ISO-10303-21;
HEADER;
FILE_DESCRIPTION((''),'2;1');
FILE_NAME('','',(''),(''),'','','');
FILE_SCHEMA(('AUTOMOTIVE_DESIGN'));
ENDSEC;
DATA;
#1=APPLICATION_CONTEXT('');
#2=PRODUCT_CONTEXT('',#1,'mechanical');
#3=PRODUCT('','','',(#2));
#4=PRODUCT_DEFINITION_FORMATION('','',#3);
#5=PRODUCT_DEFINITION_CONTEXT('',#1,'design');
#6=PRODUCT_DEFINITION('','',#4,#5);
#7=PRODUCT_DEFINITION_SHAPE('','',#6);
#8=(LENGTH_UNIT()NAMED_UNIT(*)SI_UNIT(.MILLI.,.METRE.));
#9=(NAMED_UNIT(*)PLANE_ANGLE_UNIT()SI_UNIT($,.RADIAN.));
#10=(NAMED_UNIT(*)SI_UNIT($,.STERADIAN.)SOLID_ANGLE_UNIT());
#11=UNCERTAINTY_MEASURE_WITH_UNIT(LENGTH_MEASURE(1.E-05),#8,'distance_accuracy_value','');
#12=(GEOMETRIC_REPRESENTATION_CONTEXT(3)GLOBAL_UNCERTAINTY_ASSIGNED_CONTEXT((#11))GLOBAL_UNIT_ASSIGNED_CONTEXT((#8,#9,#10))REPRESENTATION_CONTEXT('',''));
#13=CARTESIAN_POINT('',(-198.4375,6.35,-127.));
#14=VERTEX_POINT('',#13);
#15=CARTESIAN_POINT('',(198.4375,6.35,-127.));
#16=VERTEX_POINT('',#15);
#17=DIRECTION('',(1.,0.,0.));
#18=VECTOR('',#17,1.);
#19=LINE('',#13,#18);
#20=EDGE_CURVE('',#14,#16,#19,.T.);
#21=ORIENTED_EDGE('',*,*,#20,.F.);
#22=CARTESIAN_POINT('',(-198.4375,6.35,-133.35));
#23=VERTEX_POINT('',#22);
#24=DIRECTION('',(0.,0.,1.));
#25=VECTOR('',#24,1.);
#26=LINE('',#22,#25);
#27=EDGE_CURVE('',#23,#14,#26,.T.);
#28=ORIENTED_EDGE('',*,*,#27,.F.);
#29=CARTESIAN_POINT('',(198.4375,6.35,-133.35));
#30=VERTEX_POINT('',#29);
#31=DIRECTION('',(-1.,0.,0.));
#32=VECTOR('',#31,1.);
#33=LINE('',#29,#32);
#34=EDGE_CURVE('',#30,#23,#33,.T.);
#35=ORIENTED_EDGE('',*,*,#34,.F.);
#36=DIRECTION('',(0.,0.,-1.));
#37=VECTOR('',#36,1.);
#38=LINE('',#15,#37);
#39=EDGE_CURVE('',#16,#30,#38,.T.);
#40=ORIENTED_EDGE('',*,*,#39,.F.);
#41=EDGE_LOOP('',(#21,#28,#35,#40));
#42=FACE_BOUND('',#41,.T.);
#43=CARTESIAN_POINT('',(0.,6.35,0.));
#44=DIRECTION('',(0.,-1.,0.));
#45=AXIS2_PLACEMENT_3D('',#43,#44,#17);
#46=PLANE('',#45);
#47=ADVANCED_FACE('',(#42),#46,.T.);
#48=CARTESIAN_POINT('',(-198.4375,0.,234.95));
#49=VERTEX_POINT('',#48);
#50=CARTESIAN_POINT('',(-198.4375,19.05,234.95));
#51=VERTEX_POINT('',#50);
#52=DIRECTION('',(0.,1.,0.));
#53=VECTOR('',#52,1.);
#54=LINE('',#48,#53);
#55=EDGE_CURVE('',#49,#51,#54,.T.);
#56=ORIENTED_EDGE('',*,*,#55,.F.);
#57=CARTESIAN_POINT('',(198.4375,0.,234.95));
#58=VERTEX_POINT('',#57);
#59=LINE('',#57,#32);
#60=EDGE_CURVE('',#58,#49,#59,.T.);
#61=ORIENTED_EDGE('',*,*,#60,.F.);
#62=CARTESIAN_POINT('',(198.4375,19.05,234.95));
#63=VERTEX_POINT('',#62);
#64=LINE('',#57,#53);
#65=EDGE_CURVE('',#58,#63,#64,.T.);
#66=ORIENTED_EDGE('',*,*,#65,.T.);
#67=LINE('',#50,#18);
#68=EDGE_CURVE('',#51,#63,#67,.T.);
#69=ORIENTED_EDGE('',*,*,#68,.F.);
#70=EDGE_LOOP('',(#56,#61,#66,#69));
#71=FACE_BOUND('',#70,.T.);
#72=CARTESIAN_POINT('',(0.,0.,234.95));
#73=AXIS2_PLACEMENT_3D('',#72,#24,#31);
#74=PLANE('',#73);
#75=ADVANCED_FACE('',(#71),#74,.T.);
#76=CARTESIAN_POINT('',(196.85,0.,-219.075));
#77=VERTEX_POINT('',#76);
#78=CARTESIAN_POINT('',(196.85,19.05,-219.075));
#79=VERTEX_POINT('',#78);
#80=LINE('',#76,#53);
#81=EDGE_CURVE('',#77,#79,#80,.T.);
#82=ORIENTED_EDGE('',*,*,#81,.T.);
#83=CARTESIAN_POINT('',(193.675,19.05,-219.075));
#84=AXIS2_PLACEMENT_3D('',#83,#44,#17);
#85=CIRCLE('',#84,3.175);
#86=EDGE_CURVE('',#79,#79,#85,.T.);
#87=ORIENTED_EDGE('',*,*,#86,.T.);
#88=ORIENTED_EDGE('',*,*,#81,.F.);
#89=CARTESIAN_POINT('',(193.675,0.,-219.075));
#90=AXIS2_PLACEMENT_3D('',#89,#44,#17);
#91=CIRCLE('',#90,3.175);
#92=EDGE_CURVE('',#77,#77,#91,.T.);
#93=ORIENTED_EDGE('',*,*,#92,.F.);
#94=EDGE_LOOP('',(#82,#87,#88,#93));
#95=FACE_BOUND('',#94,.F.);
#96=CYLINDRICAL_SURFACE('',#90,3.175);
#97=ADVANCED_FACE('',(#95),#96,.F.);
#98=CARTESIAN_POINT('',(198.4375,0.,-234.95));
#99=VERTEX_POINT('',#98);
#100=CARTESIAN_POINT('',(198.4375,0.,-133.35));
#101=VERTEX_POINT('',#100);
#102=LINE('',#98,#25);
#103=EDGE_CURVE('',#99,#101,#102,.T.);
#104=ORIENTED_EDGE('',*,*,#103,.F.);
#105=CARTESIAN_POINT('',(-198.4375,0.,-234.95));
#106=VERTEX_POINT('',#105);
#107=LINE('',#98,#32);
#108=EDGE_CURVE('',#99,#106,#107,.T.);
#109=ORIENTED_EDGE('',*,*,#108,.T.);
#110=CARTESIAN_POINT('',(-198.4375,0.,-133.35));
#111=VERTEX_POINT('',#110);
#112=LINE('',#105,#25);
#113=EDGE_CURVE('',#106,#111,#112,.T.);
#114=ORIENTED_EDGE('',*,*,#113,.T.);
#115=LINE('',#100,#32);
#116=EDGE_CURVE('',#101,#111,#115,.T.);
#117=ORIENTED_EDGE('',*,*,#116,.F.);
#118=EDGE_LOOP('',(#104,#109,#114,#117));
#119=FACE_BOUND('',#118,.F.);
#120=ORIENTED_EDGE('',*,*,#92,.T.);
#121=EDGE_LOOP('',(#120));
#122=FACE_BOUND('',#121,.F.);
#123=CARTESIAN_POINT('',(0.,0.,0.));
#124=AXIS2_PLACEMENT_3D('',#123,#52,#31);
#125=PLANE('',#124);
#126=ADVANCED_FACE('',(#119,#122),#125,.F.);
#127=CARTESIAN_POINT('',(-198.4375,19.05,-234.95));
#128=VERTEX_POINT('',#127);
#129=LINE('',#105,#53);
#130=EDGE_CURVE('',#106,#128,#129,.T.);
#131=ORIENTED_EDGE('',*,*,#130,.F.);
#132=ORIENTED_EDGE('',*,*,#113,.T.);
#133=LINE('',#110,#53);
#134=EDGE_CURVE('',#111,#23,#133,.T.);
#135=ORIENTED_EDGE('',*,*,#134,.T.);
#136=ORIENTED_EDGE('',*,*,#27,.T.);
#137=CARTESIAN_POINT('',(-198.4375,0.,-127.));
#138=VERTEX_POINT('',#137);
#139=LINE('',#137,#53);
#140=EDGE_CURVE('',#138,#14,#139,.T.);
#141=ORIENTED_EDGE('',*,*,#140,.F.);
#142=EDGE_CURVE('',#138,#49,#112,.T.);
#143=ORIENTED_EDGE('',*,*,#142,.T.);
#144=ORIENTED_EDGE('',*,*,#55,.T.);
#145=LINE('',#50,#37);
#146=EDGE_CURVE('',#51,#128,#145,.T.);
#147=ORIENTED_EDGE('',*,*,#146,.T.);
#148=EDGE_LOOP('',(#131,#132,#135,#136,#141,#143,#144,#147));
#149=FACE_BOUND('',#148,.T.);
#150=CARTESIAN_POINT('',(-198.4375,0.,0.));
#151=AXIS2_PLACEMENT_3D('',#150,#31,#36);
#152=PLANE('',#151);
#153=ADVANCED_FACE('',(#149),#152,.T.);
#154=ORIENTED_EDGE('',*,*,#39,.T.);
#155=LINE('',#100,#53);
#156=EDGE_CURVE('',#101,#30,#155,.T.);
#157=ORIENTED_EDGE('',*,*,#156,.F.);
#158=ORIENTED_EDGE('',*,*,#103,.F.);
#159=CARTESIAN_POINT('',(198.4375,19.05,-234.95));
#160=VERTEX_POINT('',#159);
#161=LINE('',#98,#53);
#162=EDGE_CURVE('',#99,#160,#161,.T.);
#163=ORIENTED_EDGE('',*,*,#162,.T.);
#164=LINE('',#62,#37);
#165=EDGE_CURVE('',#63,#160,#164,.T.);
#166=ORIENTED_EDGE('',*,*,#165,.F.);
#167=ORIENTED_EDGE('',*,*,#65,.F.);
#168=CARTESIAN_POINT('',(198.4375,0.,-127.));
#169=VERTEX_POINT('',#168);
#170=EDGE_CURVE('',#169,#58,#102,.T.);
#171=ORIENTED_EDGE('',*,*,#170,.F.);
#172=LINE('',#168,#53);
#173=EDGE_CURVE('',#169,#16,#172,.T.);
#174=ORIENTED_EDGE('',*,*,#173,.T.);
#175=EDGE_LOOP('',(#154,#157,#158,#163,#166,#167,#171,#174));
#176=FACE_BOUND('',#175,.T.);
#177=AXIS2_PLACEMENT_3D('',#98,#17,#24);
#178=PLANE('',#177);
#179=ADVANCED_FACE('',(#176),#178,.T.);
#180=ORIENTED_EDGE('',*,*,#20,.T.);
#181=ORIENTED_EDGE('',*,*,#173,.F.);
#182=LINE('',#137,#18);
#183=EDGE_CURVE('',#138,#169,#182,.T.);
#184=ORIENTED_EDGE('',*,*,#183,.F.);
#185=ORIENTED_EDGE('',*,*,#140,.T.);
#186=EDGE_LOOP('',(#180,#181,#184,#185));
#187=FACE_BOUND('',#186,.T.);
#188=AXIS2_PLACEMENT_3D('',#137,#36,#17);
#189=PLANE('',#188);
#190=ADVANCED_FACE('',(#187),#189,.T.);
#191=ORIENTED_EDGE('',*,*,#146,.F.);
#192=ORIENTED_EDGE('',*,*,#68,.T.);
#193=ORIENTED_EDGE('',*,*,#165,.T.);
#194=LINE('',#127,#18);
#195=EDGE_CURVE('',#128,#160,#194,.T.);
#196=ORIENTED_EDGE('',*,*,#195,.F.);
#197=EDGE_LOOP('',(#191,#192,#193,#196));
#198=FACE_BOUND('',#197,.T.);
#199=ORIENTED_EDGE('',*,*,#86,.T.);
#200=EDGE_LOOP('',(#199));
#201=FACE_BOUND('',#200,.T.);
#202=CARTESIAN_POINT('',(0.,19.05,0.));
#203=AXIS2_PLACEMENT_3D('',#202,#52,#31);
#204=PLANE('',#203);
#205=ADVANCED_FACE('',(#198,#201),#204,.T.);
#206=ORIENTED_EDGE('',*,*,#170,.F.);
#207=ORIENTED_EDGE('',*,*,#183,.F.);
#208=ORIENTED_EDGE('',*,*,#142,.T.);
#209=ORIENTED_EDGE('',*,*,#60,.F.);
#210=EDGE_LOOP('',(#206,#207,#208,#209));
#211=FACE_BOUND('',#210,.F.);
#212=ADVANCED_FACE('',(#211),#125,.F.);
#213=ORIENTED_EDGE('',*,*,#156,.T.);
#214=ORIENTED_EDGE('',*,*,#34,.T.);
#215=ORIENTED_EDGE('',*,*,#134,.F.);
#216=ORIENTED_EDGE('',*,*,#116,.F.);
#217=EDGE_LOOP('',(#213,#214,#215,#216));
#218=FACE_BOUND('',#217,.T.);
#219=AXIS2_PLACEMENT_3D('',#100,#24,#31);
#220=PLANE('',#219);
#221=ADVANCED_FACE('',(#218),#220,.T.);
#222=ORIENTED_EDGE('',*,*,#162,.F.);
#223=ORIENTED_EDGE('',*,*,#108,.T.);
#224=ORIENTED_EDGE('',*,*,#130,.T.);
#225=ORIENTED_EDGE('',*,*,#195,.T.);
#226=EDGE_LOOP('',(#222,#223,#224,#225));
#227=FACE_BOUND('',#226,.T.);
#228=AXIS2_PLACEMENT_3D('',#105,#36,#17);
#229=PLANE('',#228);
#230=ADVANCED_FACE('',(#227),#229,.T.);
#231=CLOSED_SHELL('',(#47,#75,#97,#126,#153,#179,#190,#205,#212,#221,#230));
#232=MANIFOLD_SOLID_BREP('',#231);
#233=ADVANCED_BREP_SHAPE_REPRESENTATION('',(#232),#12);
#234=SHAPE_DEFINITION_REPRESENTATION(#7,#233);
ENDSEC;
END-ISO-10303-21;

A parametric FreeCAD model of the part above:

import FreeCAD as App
import Part
import Sketcher
from FreeCAD import Vector
Q = App.Units.Quantity

doc = App.newDocument("Part")
body = doc.addObject("PartDesign::Body", "Body")

sketch1 = doc.addObject("Sketcher::SketchObject", "Sketch")
body.addObject(sketch1)
sketch1.AttachmentSupport = (doc.XZ_Plane, [""])
sketch1.MapMode = "FlatFace"
sketch1.addGeometry(Part.LineSegment(Vector(-198.4375, -234.95, 0), Vector(-198.4375, 234.95, 0)), False)
sketch1.addGeometry(Part.LineSegment(Vector(-198.4375, 234.95, 0), Vector(198.4375, 234.95, 0)), False)
sketch1.addGeometry(Part.LineSegment(Vector(198.4375, 234.95, 0), Vector(198.4375, -234.95, 0)), False)
sketch1.addGeometry(Part.LineSegment(Vector(198.4375, -234.95, 0), Vector(-198.4375, -234.95, 0)), False)
sketch1.addConstraint(Sketcher.Constraint("Coincident", 0, 2, 1, 1))
sketch1.addConstraint(Sketcher.Constraint("Coincident", 1, 2, 2, 1))
sketch1.addConstraint(Sketcher.Constraint("Coincident", 2, 2, 3, 1))
sketch1.addConstraint(Sketcher.Constraint("Coincident", 3, 2, 0, 1))
sketch1.addConstraint(Sketcher.Constraint("Vertical", 0))
sketch1.addConstraint(Sketcher.Constraint("Horizontal", 1))
sketch1.addConstraint(Sketcher.Constraint("Vertical", 2))
sketch1.addConstraint(Sketcher.Constraint("Horizontal", 3))
sketch1.addConstraint(Sketcher.Constraint("Symmetric", 0, 2, 2, 2, -1, 1))
sketch1.addConstraint(Sketcher.Constraint("DistanceY", 0, 1, 0, 2, Q("18.5 in")))
sketch1.addConstraint(Sketcher.Constraint("DistanceX", 1, 1, 1, 2, Q("15.625 in")))
pad1 = doc.addObject("PartDesign::Pad", "Pad")
body.addObject(pad1)
pad1.Profile = sketch1
pad1.Length = Q("0.75 in")
pad1.Reversed = True

sketch2 = doc.addObject("Sketcher::SketchObject", "Sketch001")
body.addObject(sketch2)
sketch2.AttachmentSupport = (doc.XZ_Plane, [""])
sketch2.MapMode = "FlatFace"
sketch2.addGeometry(Part.Circle(Vector(193.675, -219.075, 0), Vector(0, 0, 1), 3.175), False)
sketch2.addConstraint(Sketcher.Constraint("Diameter", 0, Q("0.25 in")))
sketch2.addConstraint(Sketcher.Constraint("DistanceX", -1, 1, 0, 3, Q("7.625 in")))
sketch2.addConstraint(Sketcher.Constraint("DistanceY", 0, 3, -1, 1, Q("8.625 in")))
pocket1 = doc.addObject("PartDesign::Pocket", "Pocket")
body.addObject(pocket1)
pocket1.Profile = sketch2
pocket1.Length = Q("0.75 in")

sketch3 = doc.addObject("Sketcher::SketchObject", "Sketch002")
body.addObject(sketch3)
sketch3.AttachmentSupport = (doc.XZ_Plane, [""])
sketch3.MapMode = "FlatFace"
sketch3.addGeometry(Part.LineSegment(Vector(198.4375, -127, 0), Vector(-198.4375, -127, 0)), False)
sketch3.addGeometry(Part.LineSegment(Vector(-198.4375, -127, 0), Vector(-198.4375, -133.35, 0)), False)
sketch3.addGeometry(Part.LineSegment(Vector(-198.4375, -133.35, 0), Vector(198.4375, -133.35, 0)), False)
sketch3.addGeometry(Part.LineSegment(Vector(198.4375, -133.35, 0), Vector(198.4375, -127, 0)), False)
sketch3.addConstraint(Sketcher.Constraint("Coincident", 0, 2, 1, 1))
sketch3.addConstraint(Sketcher.Constraint("Coincident", 1, 2, 2, 1))
sketch3.addConstraint(Sketcher.Constraint("Coincident", 2, 2, 3, 1))
sketch3.addConstraint(Sketcher.Constraint("Coincident", 3, 2, 0, 1))
sketch3.addConstraint(Sketcher.Constraint("Horizontal", 0))
sketch3.addConstraint(Sketcher.Constraint("Vertical", 1))
sketch3.addConstraint(Sketcher.Constraint("Horizontal", 2))
sketch3.addConstraint(Sketcher.Constraint("Vertical", 3))
sketch3.addConstraint(Sketcher.Constraint("DistanceY", 1, 2, 1, 1, Q("0.25 in")))
sketch3.addConstraint(Sketcher.Constraint("DistanceY", 0, 2, -1, 1, Q("5 in")))
sketch3.addConstraint(Sketcher.Constraint("DistanceX", 0, 2, 0, 1, Q("15.625 in")))
sketch3.addConstraint(Sketcher.Constraint("DistanceX", 0, 2, -1, 1, Q("7.8125 in")))
pocket2 = doc.addObject("PartDesign::Pocket", "Pocket001")
body.addObject(pocket2)
pocket2.Profile = sketch3
pocket2.Length = Q("0.25 in")

doc.recompute()
